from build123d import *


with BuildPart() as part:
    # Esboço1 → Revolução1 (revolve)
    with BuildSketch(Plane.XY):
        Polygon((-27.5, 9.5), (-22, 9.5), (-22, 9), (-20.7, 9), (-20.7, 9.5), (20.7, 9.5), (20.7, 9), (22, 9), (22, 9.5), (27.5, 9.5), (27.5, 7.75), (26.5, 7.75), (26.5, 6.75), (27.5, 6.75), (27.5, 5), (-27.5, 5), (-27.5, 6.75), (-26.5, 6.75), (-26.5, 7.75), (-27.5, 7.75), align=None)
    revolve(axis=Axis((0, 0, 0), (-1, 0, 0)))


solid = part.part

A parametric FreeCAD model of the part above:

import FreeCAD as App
import Part
import Sketcher
Q = App.Units.Quantity


def add_polygon(sketch, points):
    """Adds a closed chain of lines whose ends are joined by coincident constraints."""
    first, n = sketch.GeometryCount, len(points)
    for a, b in zip(points, points[1:] + points[:1]):
        sketch.addGeometry(Part.LineSegment(App.Vector(*a, 0), App.Vector(*b, 0)), False)
    for i in range(n):
        sketch.addConstraint(Sketcher.Constraint("Coincident", first + i, 2, first + (i + 1) % n, 1))

doc = App.newDocument("Part")
body = doc.addObject("PartDesign::Body", "Body")

# Sketch on XY plane
sketch1 = body.newObject("Sketcher::SketchObject", "Sketch")
sketch1.AttachmentSupport = (doc.getObject("XY_Plane"), [""])
sketch1.MapMode = "FlatFace"
add_polygon(sketch1, [(-22, 9.5), (-27.5, 9.5), (-27.5, 7.75), (-26.5, 7.75), (-26.5, 6.75), (-27.5, 6.75), (-27.5, 5), (27.5, 5), (27.5, 6.75), (26.5, 6.75), (26.5, 7.75), (27.5, 7.75), (27.5, 9.5), (22, 9.5), (22, 9), (20.7, 9), (20.7, 9.5), (-20.7, 9.5), (-20.7, 9), (-22, 9)])  # lines 0-19
sketch1.addConstraint(Sketcher.Constraint("Horizontal", 0))
sketch1.addConstraint(Sketcher.Constraint("Vertical", 1))
sketch1.addConstraint(Sketcher.Constraint("Horizontal", 2))
sketch1.addConstraint(Sketcher.Constraint("Vertical", 3))
sketch1.addConstraint(Sketcher.Constraint("Horizontal", 4))
sketch1.addConstraint(Sketcher.Constraint("Vertical", 5))
sketch1.addConstraint(Sketcher.Constraint("Horizontal", 6))
sketch1.addConstraint(Sketcher.Constraint("Vertical", 7))
sketch1.addConstraint(Sketcher.Constraint("Horizontal", 8))
sketch1.addConstraint(Sketcher.Constraint("Vertical", 9))
sketch1.addConstraint(Sketcher.Constraint("Horizontal", 10))
sketch1.addConstraint(Sketcher.Constraint("Vertical", 11))
sketch1.addConstraint(Sketcher.Constraint("Horizontal", 12))
sketch1.addConstraint(Sketcher.Constraint("Vertical", 13))
sketch1.addConstraint(Sketcher.Constraint("Horizontal", 14))
sketch1.addConstraint(Sketcher.Constraint("Vertical", 15))
sketch1.addConstraint(Sketcher.Constraint("Horizontal", 16))
sketch1.addConstraint(Sketcher.Constraint("Vertical", 17))
sketch1.addConstraint(Sketcher.Constraint("Horizontal", 18))
sketch1.addConstraint(Sketcher.Constraint("Vertical", 19))
sketch1.addConstraint(Sketcher.Constraint("Symmetric", 4, 2, 7, 2, -2))
sketch1.addConstraint(Sketcher.Constraint("Symmetric", 2, 2, 9, 2, -2))
sketch1.addConstraint(Sketcher.Constraint("Symmetric", 0, 2, 11, 2, -2))
sketch1.addConstraint(Sketcher.Constraint("Symmetric", 14, 2, 17, 2, -2))
sketch1.addConstraint(Sketcher.Constraint("Horizontal", 12, 2, 15, 2))
sketch1.addConstraint(Sketcher.Constraint("Vertical", 1, 2, 4, 2))
sketch1.addConstraint(Sketcher.Constraint("Equal", 0, 12))
sketch1.addConstraint(Sketcher.Constraint("Equal", 10, 3))
sketch1.addConstraint(Sketcher.Constraint("Equal", 1, 5))
sketch1.addConstraint(Sketcher.Constraint("DistanceX", 2, 1, 2, 2, Q("1 mm")))
sketch1.addConstraint(Sketcher.Constraint("DistanceX", 6, 1, 6, 2, Q("55 mm")))
sketch1.addConstraint(Sketcher.Constraint("DistanceX", 0, 2, 0, 1, Q("5.5 mm")))
sketch1.addConstraint(Sketcher.Constraint("DistanceX", 14, 2, 14, 1, Q("1.3 mm")))
sketch1.addConstraint(Sketcher.Constraint("DistanceY", 13, 2, 13, 1, Q("0.5 mm")))
sketch1.addConstraint(Sketcher.Constraint("DistanceY", -1, 1, 5, 2, Q("5 mm")))
sketch1.addConstraint(Sketcher.Constraint("DistanceY", -1, 1, 13, 2, Q("9 mm")))
revolution = body.newObject("PartDesign::Revolution", "Revolution")
revolution.Profile = sketch1
revolution.ReferenceAxis = (sketch1, ["H_Axis"])
revolution.Angle = 360

doc.recompute()
